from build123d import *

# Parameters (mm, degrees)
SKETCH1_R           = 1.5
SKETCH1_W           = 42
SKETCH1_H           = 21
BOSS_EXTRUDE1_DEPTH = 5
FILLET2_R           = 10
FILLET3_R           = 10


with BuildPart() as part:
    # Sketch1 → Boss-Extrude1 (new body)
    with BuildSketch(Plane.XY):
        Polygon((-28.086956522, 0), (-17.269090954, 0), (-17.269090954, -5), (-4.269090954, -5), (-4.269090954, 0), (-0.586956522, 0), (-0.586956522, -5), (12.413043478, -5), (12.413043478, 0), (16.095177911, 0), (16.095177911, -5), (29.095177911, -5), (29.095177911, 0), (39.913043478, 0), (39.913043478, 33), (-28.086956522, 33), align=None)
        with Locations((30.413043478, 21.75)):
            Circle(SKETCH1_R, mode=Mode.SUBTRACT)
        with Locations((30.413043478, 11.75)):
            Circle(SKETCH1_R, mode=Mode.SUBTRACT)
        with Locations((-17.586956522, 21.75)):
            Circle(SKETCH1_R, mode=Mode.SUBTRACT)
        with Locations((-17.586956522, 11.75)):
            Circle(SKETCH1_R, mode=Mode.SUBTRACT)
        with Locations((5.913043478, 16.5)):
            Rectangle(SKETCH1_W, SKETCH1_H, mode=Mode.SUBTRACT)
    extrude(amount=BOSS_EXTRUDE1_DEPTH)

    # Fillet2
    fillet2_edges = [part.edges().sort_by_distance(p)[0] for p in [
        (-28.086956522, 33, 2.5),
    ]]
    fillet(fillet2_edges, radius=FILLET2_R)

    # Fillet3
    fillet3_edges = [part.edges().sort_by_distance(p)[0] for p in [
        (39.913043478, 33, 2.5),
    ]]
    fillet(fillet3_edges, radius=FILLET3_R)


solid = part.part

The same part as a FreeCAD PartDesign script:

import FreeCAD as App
import Part
import Sketcher

V = App.Vector


def edges_at(feature, points):
    """Names of the edges that pass closest to the given points."""
    edges = feature.Shape.Edges
    near = lambda p: min(range(len(edges)), key=lambda i: edges[i].distToShape(Part.Vertex(*p))[0])
    return sorted({f"Edge{near(p) + 1}" for p in points})


def add_polygon(sketch, points):
    """Adds a closed chain of lines whose ends are joined by coincident constraints."""
    first, n = sketch.GeometryCount, len(points)
    for a, b in zip(points, points[1:] + points[:1]):
        sketch.addGeometry(Part.LineSegment(App.Vector(*a, 0), App.Vector(*b, 0)), False)
    for i in range(n):
        sketch.addConstraint(Sketcher.Constraint("Coincident", first + i, 2, first + (i + 1) % n, 1))

doc = App.newDocument("Part")
body = doc.addObject("PartDesign::Body", "Body")

sketch1 = body.newObject("Sketcher::SketchObject", "Sketch")
sketch1.AttachmentSupport = (doc.getObject("XY_Plane"), [""])
sketch1.MapMode = "FlatFace"
add_polygon(sketch1, [(-28.086957, 0), (-17.269091, 0), (-17.269091, -5), (-4.269091, -5), (-4.269091, 0), (-0.586957, 0), (-0.586957, -5), (12.413043, -5), (12.413043, 0), (16.095178, 0), (16.095178, -5), (29.095178, -5), (29.095178, 0), (39.913043, 0), (39.913043, 33), (-28.086957, 33)])
sketch1.addGeometry(Part.Circle(V(-17.586957, 11.75, 0), V(0, 0, 1), 1.5), False)
sketch1.addGeometry(Part.Circle(V(30.413043, 11.75, 0), V(0, 0, 1), 1.5), False)
add_polygon(sketch1, [(26.913043, 6), (-15.086957, 6), (-15.086957, 27), (26.913043, 27)])
sketch1.addGeometry(Part.Circle(V(-17.586957, 21.75, 0), V(0, 0, 1), 1.5), False)
sketch1.addGeometry(Part.Circle(V(30.413043, 21.75, 0), V(0, 0, 1), 1.5), False)
sketch1.addConstraint([
    Sketcher.Constraint("Horizontal", 0),
    Sketcher.Constraint("Vertical", 1),
    Sketcher.Constraint("Horizontal", 2),
    Sketcher.Constraint("Vertical", 3),
    Sketcher.Constraint("Horizontal", 4),
    Sketcher.Constraint("Vertical", 5),
    Sketcher.Constraint("Horizontal", 6),
    Sketcher.Constraint("Vertical", 7),
    Sketcher.Constraint("Horizontal", 8),
    Sketcher.Constraint("Vertical", 9),
    Sketcher.Constraint("Horizontal", 10),
    Sketcher.Constraint("Vertical", 11),
    Sketcher.Constraint("Horizontal", 12),
    Sketcher.Constraint("Vertical", 13),
    Sketcher.Constraint("Horizontal", 14),
    Sketcher.Constraint("Vertical", 15),
    Sketcher.Constraint("Horizontal", 18),
    Sketcher.Constraint("Vertical", 19),
    Sketcher.Constraint("Horizontal", 20),
    Sketcher.Constraint("Vertical", 21),
    Sketcher.Constraint("Equal", 16, 17),
    Sketcher.Constraint("Equal", 17, 22),
    Sketcher.Constraint("Equal", 22, 23),
    Sketcher.Constraint("PointOnObject", 0, 2, -1),
    Sketcher.Constraint("PointOnObject", 3, 2, -1),
    Sketcher.Constraint("PointOnObject", 7, 2, -1),
    Sketcher.Constraint("PointOnObject", 11, 2, -1),
    Sketcher.Constraint("Horizontal", 16, 3, 17, 3),
    Sketcher.Constraint("Horizontal", 22, 3, 23, 3),
    Sketcher.Constraint("Horizontal", 2, 2, 5, 2),
    Sketcher.Constraint("Horizontal", 6, 2, 9, 2),
    Sketcher.Constraint("Vertical", 16, 3, 22, 3),
    Sketcher.Constraint("Vertical", 17, 3, 23, 3),
    Sketcher.Constraint("Equal", 2, 6),
    Sketcher.Constraint("Equal", 4, 8),
    Sketcher.Constraint("Equal", 6, 10),
    Sketcher.Constraint("Equal", 0, 12),
    Sketcher.Constraint("Diameter", 16, 3.0),
    Sketcher.Constraint("DistanceX", 2, 1, 2, 2, 13.0),
    Sketcher.Constraint("DistanceX", 14, 2, 14, 1, 68.0),
    Sketcher.Constraint("DistanceX", 18, 2, 18, 1, 42.0),
    Sketcher.Constraint("DistanceY", 1, 2, 1, 1, 5.0),
    Sketcher.Constraint("DistanceY", 13, 1, 13, 2, 33.0),
    Sketcher.Constraint("DistanceY", 19, 1, 19, 2, 21.0),
    Sketcher.Constraint("DistanceY", -1, 1, 18, 2, 6.0),
    Sketcher.Constraint("DistanceX", 16, 3, 17, 3, 48.0),
    Sketcher.Constraint("DistanceY", 16, 3, 22, 3, 10.0),
    Sketcher.Constraint("DistanceX", 16, 3, 4, 2, 17.0),
    Sketcher.Constraint("DistanceX", 15, 2, 18, 2, 13.0),
    Sketcher.Constraint("DistanceY", -1, 1, 16, 3, 11.75),
    Sketcher.Constraint("DistanceX", 0, 1, 0, 2, 10.817866),
    Sketcher.Constraint("DistanceX", 0, 2, -1, 1, 17.269091),
])
pad1 = body.newObject("PartDesign::Pad", "Pad")
pad1.Profile = sketch1
pad1.Length = 5
doc.recompute()

fillet = body.newObject("PartDesign::Fillet", "Fillet")
fillet.Base = (pad1, edges_at(pad1, [(-28.087, 33, 2.5)]))
fillet.Radius = 10
doc.recompute()

fillet2 = body.newObject("PartDesign::Fillet", "Fillet001")
fillet2.Base = (fillet, edges_at(fillet, [(39.913, 33, 2.5)]))
fillet2.Radius = 10

doc.recompute()
